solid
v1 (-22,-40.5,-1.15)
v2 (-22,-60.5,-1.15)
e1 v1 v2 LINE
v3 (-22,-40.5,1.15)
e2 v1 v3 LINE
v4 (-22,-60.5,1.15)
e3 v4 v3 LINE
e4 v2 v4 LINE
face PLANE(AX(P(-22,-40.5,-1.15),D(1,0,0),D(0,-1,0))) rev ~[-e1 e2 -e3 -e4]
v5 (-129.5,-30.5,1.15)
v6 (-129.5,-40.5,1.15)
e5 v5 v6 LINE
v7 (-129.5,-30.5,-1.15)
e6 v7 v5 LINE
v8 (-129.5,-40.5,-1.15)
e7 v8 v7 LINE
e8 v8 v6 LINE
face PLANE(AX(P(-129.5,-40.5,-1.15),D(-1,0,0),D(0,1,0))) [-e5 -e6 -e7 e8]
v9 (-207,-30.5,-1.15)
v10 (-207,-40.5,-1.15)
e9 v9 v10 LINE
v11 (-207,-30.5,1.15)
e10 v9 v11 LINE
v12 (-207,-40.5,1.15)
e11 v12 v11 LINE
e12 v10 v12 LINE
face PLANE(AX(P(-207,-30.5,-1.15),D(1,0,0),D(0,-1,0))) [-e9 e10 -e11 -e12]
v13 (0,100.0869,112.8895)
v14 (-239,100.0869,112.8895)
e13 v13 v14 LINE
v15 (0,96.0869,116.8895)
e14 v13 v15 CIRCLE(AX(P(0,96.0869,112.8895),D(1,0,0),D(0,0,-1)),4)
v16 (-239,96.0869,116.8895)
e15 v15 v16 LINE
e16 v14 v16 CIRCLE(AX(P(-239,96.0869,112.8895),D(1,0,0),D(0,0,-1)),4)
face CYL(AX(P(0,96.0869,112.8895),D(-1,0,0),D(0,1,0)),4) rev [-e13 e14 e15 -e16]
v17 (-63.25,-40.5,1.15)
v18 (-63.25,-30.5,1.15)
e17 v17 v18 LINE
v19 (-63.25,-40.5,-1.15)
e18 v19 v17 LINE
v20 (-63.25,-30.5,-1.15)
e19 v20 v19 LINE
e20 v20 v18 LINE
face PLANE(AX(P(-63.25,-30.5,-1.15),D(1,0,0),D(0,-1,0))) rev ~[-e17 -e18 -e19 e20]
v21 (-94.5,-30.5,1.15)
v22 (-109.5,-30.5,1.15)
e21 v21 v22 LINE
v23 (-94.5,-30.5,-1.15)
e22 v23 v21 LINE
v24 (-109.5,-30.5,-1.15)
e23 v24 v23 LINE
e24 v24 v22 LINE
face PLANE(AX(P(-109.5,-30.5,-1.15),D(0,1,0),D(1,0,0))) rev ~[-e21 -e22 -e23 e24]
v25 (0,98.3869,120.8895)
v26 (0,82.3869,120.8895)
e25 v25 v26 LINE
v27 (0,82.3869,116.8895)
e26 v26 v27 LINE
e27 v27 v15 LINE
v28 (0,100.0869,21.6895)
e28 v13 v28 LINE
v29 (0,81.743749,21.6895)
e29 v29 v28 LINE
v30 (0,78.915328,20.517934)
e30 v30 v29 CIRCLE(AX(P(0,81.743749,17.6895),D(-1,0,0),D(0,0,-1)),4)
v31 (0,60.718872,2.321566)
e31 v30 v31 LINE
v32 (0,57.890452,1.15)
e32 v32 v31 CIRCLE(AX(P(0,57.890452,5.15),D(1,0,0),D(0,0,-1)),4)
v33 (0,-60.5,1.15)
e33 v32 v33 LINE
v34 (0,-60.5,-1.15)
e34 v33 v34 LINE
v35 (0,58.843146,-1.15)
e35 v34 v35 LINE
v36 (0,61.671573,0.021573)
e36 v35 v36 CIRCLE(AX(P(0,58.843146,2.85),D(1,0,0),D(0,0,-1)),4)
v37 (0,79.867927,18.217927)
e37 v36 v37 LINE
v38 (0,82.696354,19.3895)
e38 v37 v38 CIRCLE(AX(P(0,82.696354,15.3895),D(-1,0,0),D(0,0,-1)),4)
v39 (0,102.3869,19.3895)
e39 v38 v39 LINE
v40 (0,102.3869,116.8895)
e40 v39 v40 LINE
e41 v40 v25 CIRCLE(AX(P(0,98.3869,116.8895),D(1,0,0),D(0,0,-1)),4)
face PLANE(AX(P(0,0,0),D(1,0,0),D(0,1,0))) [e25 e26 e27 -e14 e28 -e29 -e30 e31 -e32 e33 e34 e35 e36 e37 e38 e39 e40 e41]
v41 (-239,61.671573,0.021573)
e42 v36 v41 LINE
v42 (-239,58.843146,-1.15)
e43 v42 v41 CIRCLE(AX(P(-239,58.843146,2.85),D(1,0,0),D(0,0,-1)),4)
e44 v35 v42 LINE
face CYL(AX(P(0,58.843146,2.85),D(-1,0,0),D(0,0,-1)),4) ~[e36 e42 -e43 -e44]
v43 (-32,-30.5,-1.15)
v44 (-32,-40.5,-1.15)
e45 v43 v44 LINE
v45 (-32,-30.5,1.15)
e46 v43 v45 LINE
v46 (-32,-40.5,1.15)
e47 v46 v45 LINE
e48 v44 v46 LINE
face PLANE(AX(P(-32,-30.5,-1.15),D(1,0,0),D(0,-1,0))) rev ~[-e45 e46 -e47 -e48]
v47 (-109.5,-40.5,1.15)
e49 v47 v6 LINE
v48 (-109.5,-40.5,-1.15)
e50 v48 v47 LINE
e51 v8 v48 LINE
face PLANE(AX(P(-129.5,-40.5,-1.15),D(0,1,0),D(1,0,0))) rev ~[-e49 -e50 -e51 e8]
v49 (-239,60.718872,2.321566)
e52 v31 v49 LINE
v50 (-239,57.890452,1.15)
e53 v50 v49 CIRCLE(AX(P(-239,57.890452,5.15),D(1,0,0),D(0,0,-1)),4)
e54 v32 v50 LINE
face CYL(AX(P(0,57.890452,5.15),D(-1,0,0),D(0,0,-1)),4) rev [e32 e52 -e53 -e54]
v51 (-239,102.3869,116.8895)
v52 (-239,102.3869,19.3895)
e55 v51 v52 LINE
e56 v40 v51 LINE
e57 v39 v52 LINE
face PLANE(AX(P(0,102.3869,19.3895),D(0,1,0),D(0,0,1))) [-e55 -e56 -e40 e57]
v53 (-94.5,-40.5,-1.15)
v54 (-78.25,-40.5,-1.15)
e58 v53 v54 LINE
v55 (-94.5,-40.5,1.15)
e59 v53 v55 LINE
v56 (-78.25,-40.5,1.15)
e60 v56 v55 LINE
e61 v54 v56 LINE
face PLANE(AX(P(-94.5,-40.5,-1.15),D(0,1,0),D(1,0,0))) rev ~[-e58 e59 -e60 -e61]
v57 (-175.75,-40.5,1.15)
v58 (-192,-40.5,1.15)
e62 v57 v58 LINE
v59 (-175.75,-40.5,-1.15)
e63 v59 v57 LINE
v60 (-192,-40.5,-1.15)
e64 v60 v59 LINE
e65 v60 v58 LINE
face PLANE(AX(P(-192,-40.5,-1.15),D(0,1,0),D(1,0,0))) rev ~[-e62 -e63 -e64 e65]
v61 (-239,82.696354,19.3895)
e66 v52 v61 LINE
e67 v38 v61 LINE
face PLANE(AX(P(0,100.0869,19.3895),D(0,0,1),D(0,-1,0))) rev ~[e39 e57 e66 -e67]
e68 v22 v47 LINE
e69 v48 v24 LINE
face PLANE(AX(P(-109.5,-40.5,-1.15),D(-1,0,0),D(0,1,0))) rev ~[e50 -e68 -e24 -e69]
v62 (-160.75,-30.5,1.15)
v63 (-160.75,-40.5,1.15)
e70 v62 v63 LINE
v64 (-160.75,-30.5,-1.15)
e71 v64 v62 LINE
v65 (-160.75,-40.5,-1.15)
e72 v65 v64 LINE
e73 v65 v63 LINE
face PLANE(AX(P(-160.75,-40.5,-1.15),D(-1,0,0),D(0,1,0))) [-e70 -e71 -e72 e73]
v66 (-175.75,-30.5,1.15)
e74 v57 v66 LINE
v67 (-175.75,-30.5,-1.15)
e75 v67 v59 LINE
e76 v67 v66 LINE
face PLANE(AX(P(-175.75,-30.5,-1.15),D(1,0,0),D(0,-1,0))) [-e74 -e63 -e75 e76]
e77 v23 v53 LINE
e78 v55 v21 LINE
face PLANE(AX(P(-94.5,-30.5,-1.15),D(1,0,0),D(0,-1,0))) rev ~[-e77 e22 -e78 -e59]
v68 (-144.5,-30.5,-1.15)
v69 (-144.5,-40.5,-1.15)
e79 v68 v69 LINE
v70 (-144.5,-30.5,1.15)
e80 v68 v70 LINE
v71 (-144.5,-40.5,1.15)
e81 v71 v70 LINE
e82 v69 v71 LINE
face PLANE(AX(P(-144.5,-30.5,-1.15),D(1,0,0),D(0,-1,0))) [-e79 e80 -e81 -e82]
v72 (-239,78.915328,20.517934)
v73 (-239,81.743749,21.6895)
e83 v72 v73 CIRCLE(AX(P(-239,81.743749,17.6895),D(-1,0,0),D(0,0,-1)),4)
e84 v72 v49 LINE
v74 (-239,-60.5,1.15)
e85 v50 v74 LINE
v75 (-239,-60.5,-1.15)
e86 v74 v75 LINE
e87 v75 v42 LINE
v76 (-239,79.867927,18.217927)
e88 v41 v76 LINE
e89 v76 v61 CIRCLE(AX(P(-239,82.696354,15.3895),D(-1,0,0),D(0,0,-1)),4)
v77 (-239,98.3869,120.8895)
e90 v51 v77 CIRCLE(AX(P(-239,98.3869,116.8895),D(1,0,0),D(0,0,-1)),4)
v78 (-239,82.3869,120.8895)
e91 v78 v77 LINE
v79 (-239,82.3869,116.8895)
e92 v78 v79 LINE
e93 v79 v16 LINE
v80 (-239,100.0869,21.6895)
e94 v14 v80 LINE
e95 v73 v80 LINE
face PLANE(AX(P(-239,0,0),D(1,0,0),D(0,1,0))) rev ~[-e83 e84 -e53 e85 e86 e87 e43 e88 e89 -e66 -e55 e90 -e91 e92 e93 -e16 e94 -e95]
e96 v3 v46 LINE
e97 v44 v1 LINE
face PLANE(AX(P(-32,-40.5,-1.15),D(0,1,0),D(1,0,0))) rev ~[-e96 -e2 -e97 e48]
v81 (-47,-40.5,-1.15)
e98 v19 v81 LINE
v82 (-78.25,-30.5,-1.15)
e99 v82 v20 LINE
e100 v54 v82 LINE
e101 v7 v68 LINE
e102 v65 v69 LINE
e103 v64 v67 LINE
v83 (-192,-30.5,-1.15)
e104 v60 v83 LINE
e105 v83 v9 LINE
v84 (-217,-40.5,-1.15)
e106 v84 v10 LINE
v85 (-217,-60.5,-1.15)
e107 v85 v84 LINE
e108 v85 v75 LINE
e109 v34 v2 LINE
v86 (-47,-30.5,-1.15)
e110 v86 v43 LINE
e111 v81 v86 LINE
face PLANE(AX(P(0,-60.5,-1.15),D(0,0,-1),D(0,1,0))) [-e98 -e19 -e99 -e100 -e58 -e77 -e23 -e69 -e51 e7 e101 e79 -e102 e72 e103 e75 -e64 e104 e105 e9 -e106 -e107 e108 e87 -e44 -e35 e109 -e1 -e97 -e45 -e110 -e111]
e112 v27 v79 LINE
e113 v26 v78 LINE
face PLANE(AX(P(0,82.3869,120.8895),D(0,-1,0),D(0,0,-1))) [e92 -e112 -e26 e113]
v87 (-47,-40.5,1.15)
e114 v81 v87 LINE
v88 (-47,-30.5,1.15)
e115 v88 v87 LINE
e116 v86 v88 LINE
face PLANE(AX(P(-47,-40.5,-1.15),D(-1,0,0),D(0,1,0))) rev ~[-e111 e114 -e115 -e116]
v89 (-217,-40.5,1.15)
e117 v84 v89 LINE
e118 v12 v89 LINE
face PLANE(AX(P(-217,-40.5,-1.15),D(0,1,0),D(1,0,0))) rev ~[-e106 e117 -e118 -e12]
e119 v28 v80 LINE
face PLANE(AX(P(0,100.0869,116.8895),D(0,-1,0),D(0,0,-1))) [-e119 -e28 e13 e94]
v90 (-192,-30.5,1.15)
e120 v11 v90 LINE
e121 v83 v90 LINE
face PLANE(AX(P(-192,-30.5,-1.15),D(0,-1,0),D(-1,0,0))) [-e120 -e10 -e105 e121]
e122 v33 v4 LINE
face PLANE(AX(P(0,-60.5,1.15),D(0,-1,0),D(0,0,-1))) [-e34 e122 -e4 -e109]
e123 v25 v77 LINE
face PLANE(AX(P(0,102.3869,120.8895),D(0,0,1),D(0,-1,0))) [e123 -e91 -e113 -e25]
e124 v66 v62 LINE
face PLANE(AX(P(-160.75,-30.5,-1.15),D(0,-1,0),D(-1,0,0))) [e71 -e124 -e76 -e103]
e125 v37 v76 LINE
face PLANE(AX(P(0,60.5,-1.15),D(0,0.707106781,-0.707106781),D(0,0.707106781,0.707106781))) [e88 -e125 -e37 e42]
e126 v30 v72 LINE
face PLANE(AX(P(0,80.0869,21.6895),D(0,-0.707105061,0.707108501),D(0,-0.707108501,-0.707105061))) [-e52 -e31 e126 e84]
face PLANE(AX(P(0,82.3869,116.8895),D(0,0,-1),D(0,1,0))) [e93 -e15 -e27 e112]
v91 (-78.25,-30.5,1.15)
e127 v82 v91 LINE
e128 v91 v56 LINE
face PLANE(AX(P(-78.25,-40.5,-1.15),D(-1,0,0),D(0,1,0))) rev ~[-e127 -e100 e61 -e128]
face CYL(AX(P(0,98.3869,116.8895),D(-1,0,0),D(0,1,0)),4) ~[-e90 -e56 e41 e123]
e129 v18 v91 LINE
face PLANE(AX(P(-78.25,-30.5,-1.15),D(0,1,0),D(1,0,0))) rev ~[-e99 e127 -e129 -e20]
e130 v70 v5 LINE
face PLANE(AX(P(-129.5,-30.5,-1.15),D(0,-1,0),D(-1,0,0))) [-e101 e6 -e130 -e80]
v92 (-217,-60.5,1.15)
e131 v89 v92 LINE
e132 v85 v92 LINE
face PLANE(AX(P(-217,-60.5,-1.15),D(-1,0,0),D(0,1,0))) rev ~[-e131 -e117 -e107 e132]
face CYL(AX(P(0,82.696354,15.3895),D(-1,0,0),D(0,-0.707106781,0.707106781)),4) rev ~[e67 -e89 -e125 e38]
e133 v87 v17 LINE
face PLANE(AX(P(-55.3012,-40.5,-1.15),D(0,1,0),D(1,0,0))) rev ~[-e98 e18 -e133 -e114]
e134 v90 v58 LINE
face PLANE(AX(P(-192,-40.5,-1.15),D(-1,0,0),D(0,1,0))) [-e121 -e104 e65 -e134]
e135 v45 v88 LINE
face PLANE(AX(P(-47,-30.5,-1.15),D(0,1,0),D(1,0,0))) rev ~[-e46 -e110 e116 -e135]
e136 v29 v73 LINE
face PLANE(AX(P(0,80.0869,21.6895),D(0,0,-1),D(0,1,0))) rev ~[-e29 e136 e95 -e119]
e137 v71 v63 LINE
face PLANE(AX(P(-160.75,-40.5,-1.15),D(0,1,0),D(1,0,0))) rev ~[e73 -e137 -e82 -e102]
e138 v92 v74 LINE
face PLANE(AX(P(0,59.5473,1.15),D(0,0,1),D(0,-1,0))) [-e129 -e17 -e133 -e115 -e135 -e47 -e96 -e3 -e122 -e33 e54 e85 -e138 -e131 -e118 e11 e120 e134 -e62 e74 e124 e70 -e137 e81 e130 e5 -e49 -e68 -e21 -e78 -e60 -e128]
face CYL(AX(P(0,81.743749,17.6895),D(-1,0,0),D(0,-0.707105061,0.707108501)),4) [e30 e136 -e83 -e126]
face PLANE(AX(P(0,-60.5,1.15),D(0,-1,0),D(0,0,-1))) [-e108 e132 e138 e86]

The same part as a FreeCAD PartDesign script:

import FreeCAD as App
import Part
import Sketcher
from FreeCAD import Vector
Q = App.Units.Quantity


def edges_at(feature, points):
    """Names of the edges that pass closest to the given points."""
    edges = feature.Shape.Edges
    near = lambda p: min(range(len(edges)), key=lambda i: edges[i].distToShape(Part.Vertex(*p))[0])
    return sorted({f"Edge{near(p) + 1}" for p in points})


def add_polygon(sketch, points):
    """Adds a closed chain of lines whose ends are joined by coincident constraints."""
    first, n = sketch.GeometryCount, len(points)
    for a, b in zip(points, points[1:] + points[:1]):
        sketch.addGeometry(Part.LineSegment(App.Vector(*a, 0), App.Vector(*b, 0)), False)
    for i in range(n):
        sketch.addConstraint(Sketcher.Constraint("Coincident", first + i, 2, first + (i + 1) % n, 1))

doc = App.newDocument("Part")
body = doc.addObject("PartDesign::Body", "Body")

sketch1 = body.newObject("Sketcher::SketchObject", "Sketch")
sketch1.AttachmentSupport = (doc.getObject("YZ_Plane"), [""])
sketch1.MapMode = "FlatFace"
add_polygon(sketch1, [(-60.5, -1.1), (60.5, -1.1), (81, 19.4), (102.4, 19.4), (102.4, 120.9), (82.4, 120.9), (82.4, 116.9), (100.1, 116.9), (100.1, 21.7), (80.1, 21.7), (59.5, 1.1), (-60.5, 1.1)])
sketch1.addConstraint([
    Sketcher.Constraint("Horizontal", 0),
    Sketcher.Constraint("Horizontal", 2),
    Sketcher.Constraint("Vertical", 3),
    Sketcher.Constraint("Horizontal", 4),
    Sketcher.Constraint("Vertical", 5),
    Sketcher.Constraint("Horizontal", 6),
    Sketcher.Constraint("Vertical", 7),
    Sketcher.Constraint("Horizontal", 8),
    Sketcher.Constraint("Horizontal", 10),
    Sketcher.Constraint("Vertical", 11),
    Sketcher.Constraint("Symmetric", 0, 2, 10, 2, -1, 1),
    Sketcher.Constraint("Parallel", 1, 9),
    Sketcher.Constraint("Equal", 4, 8),
    Sketcher.Constraint("Equal", 1, 9),
    Sketcher.Constraint("DistanceX", 0, 1, 0, 2, Q("121 mm")),
    Sketcher.Constraint("DistanceX", 4, 2, 4, 1, Q("20 mm")),
    Sketcher.Constraint("DistanceY", 5, 2, 5, 1, Q("4 mm")),
    Sketcher.Constraint("Angle", 1, Q("45 deg")),
    Sketcher.Constraint("DistanceY", 3, 1, 3, 2, Q("101.5 mm")),
    Sketcher.Constraint("DistanceY", 11, 2, 11, 1, Q("2.3 mm")),
    Sketcher.Constraint("DistanceX", 6, 2, 3, 2, Q("2.3 mm")),
    Sketcher.Constraint("DistanceX", 2, 1, 2, 2, Q("21.3474 mm")),
    Sketcher.Constraint("DistanceX", -1, 1, 2, 2, Q("102.387 mm")),
])
pad1 = body.newObject("PartDesign::Pad", "Pad")
pad1.Profile = sketch1
pad1.Length = 239
pad1.Reversed = True
doc.recompute()

fillet = body.newObject("PartDesign::Fillet", "Fillet")
fillet.Base = (pad1, edges_at(pad1, [(-119.5, 60.5, -1.15)]))
fillet.Radius = 4
doc.recompute()

fillet2 = body.newObject("PartDesign::Fillet", "Fillet001")
fillet2.Base = (fillet, edges_at(fillet, [
    (-119.5, 59.547, 1.15),
    (-119.5, 81.04, 19.39),
    (-119.5, 80.087, 21.689),
    (-119.5, 102.387, 120.889),
    (-119.5, 100.087, 116.889),
]))
fillet2.Radius = 4

sketch2 = body.newObject("Sketcher::SketchObject", "Sketch001")
sketch2.AttachmentSupport = (doc.getObject("XY_Plane"), [""])
sketch2.MapMode = "FlatFace"
sketch2.AttachmentOffset = App.Placement(Vector(0, 0, -1.15), App.Rotation())
add_polygon(sketch2, [(-22, -40), (-22, -60), (-217, -60), (-217, -40), (-207, -40), (-207, -30), (-192, -30), (-192, -40), (-176, -40), (-176, -30), (-161, -30), (-161, -40), (-144, -40), (-144, -30), (-130, -30), (-130, -40), (-110, -40), (-110, -30), (-94, -30), (-94, -40), (-78, -40), (-78, -30), (-63, -30), (-63, -40), (-47, -40), (-47, -30), (-32, -30), (-32, -40)])
sketch2.addConstraint([
    Sketcher.Constraint("Vertical", 0),
    Sketcher.Constraint("Horizontal", 1),
    Sketcher.Constraint("Vertical", 2),
    Sketcher.Constraint("Horizontal", 3),
    Sketcher.Constraint("Vertical", 4),
    Sketcher.Constraint("Horizontal", 5),
    Sketcher.Constraint("Vertical", 6),
    Sketcher.Constraint("Horizontal", 7),
    Sketcher.Constraint("Vertical", 8),
    Sketcher.Constraint("Horizontal", 9),
    Sketcher.Constraint("Vertical", 10),
    Sketcher.Constraint("Horizontal", 11),
    Sketcher.Constraint("Vertical", 12),
    Sketcher.Constraint("Horizontal", 13),
    Sketcher.Constraint("Vertical", 14),
    Sketcher.Constraint("Horizontal", 15),
    Sketcher.Constraint("Vertical", 16),
    Sketcher.Constraint("Horizontal", 17),
    Sketcher.Constraint("Vertical", 18),
    Sketcher.Constraint("Horizontal", 19),
    Sketcher.Constraint("Vertical", 20),
    Sketcher.Constraint("Horizontal", 21),
    Sketcher.Constraint("Vertical", 22),
    Sketcher.Constraint("Horizontal", 23),
    Sketcher.Constraint("Vertical", 24),
    Sketcher.Constraint("Horizontal", 25),
    Sketcher.Constraint("Vertical", 26),
    Sketcher.Constraint("Horizontal", 27),
    Sketcher.Constraint("Horizontal", 3, 2, 6, 2),
    Sketcher.Constraint("Horizontal", 5, 2, 8, 2),
    Sketcher.Constraint("Horizontal", 7, 2, 10, 2),
    Sketcher.Constraint("Horizontal", 9, 2, 12, 2),
    Sketcher.Constraint("Horizontal", 11, 2, 14, 2),
    Sketcher.Constraint("Horizontal", 13, 2, 16, 2),
    Sketcher.Constraint("Horizontal", 15, 2, 18, 2),
    Sketcher.Constraint("Horizontal", 17, 2, 20, 2),
    Sketcher.Constraint("Horizontal", 19, 2, 22, 2),
    Sketcher.Constraint("Horizontal", 21, 2, 24, 2),
    Sketcher.Constraint("Horizontal", 23, 2, 26, 2),
    Sketcher.Constraint("Equal", 5, 9),
    Sketcher.Constraint("Equal", 7, 11),
    Sketcher.Constraint("Equal", 9, 13),
    Sketcher.Constraint("Equal", 13, 17),
    Sketcher.Constraint("Equal", 11, 19),
    Sketcher.Constraint("Equal", 17, 21),
    Sketcher.Constraint("Equal", 19, 23),
    Sketcher.Constraint("Equal", 21, 25),
    Sketcher.Constraint("Equal", 3, 27),
    Sketcher.Constraint("Equal", 15, 0),
    Sketcher.Constraint("Equal", 27, 4),
    Sketcher.Constraint("DistanceX", 1, 2, 1, 1, Q("195 mm")),
    Sketcher.Constraint("DistanceX", 3, 1, 3, 2, Q("10 mm")),
    Sketcher.Constraint("DistanceX", 5, 1, 5, 2, Q("15 mm")),
    Sketcher.Constraint("DistanceX", 0, 2, -1, 1, Q("22 mm")),
    Sketcher.Constraint("DistanceX", 15, 1, 15, 2, Q("20 mm")),
    Sketcher.Constraint("DistanceY", 0, 2, -1, 1, Q("60.5 mm")),
])
pocket1 = body.newObject("PartDesign::Pocket", "Pocket")
pocket1.Profile = sketch2
pocket1.Length = 10
pocket1.Reversed = True

doc.recompute()
